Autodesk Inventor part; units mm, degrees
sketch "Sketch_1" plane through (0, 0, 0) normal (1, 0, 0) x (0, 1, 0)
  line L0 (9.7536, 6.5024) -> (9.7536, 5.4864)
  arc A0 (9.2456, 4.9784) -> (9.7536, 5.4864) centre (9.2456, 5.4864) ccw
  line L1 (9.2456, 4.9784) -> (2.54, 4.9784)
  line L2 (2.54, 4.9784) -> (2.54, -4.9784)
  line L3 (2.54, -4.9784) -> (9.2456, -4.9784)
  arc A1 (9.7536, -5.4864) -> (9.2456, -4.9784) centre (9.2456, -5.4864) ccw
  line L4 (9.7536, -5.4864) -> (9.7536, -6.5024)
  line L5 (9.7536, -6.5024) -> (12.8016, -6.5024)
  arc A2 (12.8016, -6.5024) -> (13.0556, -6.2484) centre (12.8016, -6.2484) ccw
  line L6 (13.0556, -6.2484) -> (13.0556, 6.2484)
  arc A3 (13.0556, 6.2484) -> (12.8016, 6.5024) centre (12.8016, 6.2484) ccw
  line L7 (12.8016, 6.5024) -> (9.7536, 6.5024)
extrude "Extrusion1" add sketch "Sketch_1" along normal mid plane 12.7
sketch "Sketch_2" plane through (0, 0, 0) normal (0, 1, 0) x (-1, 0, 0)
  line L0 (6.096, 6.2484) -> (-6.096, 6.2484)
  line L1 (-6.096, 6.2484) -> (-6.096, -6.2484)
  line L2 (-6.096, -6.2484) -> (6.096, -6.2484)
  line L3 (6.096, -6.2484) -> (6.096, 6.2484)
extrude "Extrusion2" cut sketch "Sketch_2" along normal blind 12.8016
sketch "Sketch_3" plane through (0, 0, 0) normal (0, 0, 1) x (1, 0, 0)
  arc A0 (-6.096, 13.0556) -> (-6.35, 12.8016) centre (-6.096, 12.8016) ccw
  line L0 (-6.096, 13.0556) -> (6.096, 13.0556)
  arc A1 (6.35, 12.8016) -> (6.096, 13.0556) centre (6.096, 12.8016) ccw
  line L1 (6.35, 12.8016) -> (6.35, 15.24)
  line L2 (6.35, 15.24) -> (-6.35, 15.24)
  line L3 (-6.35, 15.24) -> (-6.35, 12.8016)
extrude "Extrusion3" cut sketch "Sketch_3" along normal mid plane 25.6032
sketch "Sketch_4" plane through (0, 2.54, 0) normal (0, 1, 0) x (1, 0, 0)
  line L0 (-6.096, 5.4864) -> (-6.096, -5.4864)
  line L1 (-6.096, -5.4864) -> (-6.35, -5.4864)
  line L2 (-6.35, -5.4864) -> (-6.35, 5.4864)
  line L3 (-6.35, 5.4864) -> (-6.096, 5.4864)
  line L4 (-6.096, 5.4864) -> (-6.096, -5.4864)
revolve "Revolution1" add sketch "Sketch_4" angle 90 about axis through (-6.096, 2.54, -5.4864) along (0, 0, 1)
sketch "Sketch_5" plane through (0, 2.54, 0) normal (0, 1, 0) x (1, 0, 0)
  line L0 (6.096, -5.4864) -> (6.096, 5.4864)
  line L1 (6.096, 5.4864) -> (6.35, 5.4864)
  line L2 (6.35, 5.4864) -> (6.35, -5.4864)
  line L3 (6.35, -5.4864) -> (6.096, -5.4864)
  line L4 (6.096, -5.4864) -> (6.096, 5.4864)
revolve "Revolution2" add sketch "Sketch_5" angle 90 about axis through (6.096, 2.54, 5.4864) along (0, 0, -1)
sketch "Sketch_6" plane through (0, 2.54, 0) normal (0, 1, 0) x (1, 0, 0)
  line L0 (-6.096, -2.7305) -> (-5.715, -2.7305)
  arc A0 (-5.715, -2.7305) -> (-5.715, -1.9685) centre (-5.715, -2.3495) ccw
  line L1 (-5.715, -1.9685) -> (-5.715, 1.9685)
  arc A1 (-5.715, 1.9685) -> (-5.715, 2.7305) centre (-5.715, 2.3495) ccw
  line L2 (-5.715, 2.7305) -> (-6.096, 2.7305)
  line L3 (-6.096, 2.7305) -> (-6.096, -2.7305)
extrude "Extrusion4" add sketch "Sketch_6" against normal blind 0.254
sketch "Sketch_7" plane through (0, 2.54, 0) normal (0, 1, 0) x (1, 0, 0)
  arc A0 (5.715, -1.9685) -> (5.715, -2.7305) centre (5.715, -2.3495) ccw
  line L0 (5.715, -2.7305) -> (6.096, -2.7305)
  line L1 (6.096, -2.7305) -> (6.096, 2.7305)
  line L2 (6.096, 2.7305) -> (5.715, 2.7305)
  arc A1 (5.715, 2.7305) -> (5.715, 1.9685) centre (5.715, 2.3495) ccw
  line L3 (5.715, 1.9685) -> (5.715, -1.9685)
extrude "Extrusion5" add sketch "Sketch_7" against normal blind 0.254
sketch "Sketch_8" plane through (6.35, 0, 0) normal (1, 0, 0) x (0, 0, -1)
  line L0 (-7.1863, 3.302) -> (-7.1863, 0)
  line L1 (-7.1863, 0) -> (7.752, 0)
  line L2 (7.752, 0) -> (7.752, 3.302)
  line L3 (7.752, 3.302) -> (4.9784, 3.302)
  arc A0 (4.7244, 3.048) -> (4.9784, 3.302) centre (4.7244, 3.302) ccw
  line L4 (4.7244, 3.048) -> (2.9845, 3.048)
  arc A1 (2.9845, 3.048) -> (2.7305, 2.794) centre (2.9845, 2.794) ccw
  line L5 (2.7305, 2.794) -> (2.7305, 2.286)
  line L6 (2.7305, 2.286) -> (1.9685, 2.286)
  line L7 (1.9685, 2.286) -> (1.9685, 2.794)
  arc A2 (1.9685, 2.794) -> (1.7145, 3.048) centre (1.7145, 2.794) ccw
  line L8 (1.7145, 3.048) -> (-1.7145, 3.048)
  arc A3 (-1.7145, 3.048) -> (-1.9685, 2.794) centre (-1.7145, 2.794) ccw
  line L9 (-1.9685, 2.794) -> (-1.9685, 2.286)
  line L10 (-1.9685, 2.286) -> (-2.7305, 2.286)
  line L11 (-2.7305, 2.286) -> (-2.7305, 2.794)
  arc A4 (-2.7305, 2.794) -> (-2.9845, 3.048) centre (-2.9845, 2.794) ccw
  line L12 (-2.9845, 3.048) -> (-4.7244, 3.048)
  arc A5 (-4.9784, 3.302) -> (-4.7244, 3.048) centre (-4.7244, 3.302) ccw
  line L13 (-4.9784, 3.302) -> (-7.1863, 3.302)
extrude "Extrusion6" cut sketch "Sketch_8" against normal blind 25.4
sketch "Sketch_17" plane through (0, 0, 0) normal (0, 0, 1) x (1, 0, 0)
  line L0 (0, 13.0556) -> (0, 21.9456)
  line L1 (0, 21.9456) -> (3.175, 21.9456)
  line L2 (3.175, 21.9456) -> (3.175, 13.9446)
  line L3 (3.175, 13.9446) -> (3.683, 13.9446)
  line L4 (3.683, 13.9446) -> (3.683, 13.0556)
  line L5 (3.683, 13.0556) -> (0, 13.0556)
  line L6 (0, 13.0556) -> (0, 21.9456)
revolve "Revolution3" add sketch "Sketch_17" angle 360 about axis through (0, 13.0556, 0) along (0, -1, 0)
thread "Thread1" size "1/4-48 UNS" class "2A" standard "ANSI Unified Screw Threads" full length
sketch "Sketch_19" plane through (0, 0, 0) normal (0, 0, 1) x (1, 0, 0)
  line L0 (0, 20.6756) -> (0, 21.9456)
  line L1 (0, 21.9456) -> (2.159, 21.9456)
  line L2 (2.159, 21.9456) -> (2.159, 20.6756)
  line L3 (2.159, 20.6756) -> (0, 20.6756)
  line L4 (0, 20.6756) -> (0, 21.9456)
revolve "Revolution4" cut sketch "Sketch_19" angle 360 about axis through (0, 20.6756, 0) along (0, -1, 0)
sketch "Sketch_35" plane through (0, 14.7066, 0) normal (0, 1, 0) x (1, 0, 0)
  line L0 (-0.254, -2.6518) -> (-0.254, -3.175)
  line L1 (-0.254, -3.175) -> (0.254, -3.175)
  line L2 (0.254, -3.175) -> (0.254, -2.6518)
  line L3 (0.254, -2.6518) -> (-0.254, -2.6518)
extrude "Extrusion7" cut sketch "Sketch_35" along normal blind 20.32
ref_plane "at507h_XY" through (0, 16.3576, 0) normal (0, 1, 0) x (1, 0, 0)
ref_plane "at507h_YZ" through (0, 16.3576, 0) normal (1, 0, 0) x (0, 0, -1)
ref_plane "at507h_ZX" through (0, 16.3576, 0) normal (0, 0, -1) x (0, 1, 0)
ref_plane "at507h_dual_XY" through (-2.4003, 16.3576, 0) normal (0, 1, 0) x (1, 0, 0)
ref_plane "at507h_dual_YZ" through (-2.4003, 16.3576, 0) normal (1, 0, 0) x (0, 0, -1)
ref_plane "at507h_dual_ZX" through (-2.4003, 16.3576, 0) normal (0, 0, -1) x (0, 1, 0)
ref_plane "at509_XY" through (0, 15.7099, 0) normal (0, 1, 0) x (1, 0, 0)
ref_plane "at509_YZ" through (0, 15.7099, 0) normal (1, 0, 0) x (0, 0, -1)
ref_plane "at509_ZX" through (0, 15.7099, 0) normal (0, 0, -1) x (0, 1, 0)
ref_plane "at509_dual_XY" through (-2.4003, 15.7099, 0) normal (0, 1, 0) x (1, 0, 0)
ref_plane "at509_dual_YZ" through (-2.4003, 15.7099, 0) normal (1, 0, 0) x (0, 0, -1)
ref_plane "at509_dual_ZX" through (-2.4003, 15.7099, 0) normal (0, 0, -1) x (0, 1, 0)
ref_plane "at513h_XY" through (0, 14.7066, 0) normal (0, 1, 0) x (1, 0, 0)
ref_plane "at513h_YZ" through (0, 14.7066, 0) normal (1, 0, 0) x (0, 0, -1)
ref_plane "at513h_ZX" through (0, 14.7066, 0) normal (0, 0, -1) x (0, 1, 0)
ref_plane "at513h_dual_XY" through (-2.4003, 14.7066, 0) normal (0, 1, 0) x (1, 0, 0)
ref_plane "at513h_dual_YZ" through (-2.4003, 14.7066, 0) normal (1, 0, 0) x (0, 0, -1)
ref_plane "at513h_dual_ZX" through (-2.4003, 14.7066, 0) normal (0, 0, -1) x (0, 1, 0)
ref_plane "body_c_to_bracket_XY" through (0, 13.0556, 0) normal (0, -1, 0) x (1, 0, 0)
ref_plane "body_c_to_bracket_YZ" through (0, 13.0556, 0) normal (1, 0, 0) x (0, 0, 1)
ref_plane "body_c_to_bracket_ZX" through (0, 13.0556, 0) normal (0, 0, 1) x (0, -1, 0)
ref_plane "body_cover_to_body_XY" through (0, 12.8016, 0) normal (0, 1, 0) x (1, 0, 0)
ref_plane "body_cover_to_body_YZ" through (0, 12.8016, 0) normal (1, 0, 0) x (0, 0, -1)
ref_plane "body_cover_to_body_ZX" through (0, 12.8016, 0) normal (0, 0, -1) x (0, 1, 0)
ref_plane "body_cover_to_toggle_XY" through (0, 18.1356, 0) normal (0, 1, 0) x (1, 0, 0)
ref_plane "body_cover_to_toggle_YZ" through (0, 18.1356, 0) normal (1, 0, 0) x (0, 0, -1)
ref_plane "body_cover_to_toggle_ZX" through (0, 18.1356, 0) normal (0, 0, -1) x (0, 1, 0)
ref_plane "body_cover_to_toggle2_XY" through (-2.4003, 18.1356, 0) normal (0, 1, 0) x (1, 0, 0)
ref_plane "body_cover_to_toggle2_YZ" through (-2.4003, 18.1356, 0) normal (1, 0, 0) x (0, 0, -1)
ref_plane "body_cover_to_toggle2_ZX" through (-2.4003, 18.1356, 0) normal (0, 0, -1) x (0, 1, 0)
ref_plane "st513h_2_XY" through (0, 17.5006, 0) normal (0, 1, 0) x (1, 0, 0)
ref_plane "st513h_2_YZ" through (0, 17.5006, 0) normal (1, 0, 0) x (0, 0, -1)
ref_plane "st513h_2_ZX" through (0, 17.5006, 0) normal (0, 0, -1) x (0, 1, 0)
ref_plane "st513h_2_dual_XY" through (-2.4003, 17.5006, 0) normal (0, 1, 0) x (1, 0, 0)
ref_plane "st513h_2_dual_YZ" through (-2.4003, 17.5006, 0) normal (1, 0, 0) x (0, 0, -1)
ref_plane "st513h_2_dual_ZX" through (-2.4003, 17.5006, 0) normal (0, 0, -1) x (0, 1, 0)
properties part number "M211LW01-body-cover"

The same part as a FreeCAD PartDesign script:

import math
import FreeCAD as App
import Part
import Sketcher
from FreeCAD import Vector
Q = App.Units.Quantity

doc = App.newDocument("Part")
body = doc.addObject("PartDesign::Body", "Body")

# Sketch on YZ plane
sketch1 = body.newObject("Sketcher::SketchObject", "Sketch")
sketch1.AttachmentSupport = (doc.getObject("YZ_Plane"), [""])
sketch1.MapMode = "FlatFace"
sketch1.addGeometry(Part.LineSegment(Vector(12.8, 6.5, 0), Vector(9.75, 6.5, 0)), False)
sketch1.addGeometry(Part.LineSegment(Vector(9.75, 6.5, 0), Vector(9.75, 5.49, 0)), False)
sketch1.addGeometry(Part.ArcOfCircle(Part.Circle(Vector(9.25, 5.49, 0), Vector(0, 0, 1), 0.51), math.radians(-90), math.radians(0)), False)
sketch1.addGeometry(Part.LineSegment(Vector(9.25, 4.98, 0), Vector(2.54, 4.98, 0)), False)
sketch1.addGeometry(Part.LineSegment(Vector(2.54, 4.98, 0), Vector(2.54, -4.98, 0)), False)
sketch1.addGeometry(Part.LineSegment(Vector(2.54, -4.98, 0), Vector(9.25, -4.98, 0)), False)
sketch1.addGeometry(Part.ArcOfCircle(Part.Circle(Vector(9.25, -5.49, 0), Vector(0, 0, 1), 0.51), math.radians(0), math.radians(90)), False)
sketch1.addGeometry(Part.LineSegment(Vector(9.75, -5.49, 0), Vector(9.75, -6.5, 0)), False)
sketch1.addGeometry(Part.LineSegment(Vector(9.75, -6.5, 0), Vector(12.8, -6.5, 0)), False)
sketch1.addGeometry(Part.ArcOfCircle(Part.Circle(Vector(12.8, -6.25, 0), Vector(0, 0, 1), 0.25), math.radians(-90), math.radians(0)), False)
sketch1.addGeometry(Part.LineSegment(Vector(13.06, -6.25, 0), Vector(13.06, 6.25, 0)), False)
sketch1.addGeometry(Part.ArcOfCircle(Part.Circle(Vector(12.8, 6.25, 0), Vector(0, 0, 1), 0.25), math.radians(0), math.radians(90)), False)
sketch1.addConstraint(Sketcher.Constraint("Coincident", 0, 2, 1, 1))
sketch1.addConstraint(Sketcher.Constraint("Tangent", 1, 2, 2, 2))
sketch1.addConstraint(Sketcher.Constraint("Tangent", 2, 1, 3, 1))
sketch1.addConstraint(Sketcher.Constraint("Coincident", 3, 2, 4, 1))
sketch1.addConstraint(Sketcher.Constraint("Coincident", 4, 2, 5, 1))
sketch1.addConstraint(Sketcher.Constraint("Tangent", 5, 2, 6, 2))
sketch1.addConstraint(Sketcher.Constraint("Tangent", 6, 1, 7, 1))
sketch1.addConstraint(Sketcher.Constraint("Coincident", 7, 2, 8, 1))
sketch1.addConstraint(Sketcher.Constraint("Tangent", 8, 2, 9, 1))
sketch1.addConstraint(Sketcher.Constraint("Tangent", 9, 2, 10, 1))
sketch1.addConstraint(Sketcher.Constraint("Tangent", 10, 2, 11, 1))
sketch1.addConstraint(Sketcher.Constraint("Tangent", 11, 2, 0, 1))
sketch1.addConstraint(Sketcher.Constraint("Horizontal", 0))
sketch1.addConstraint(Sketcher.Constraint("Vertical", 1))
sketch1.addConstraint(Sketcher.Constraint("Horizontal", 3))
sketch1.addConstraint(Sketcher.Constraint("Vertical", 4))
sketch1.addConstraint(Sketcher.Constraint("Horizontal", 5))
sketch1.addConstraint(Sketcher.Constraint("Vertical", 7))
sketch1.addConstraint(Sketcher.Constraint("Horizontal", 8))
sketch1.addConstraint(Sketcher.Constraint("Vertical", 10))
sketch1.addConstraint(Sketcher.Constraint("Equal", 2, 6))
sketch1.addConstraint(Sketcher.Constraint("Equal", 9, 11))
sketch1.addConstraint(Sketcher.Constraint("Symmetric", 2, 3, 6, 3, -1))
sketch1.addConstraint(Sketcher.Constraint("Equal", 1, 7))
sketch1.addConstraint(Sketcher.Constraint("Radius", 2, Q("0.02 in")))
sketch1.addConstraint(Sketcher.Constraint("Radius", 9, Q("0.01 in")))
sketch1.addConstraint(Sketcher.Constraint("DistanceX", 0, 2, 0, 1, Q("0.12 in")))
sketch1.addConstraint(Sketcher.Constraint("DistanceY", 1, 2, 1, 1, Q("0.04 in")))
sketch1.addConstraint(Sketcher.Constraint("DistanceX", -1, 1, 3, 2, Q("0.1 in")))
sketch1.addConstraint(Sketcher.Constraint("DistanceX", 3, 2, 3, 1, Q("0.264 in")))
sketch1.addConstraint(Sketcher.Constraint("DistanceY", 4, 2, 4, 1, Q("0.392 in")))
pad1 = body.newObject("PartDesign::Pad", "Pad")
pad1.Profile = sketch1
pad1.Length = Q("0.5 in")
pad1.Midplane = True

# Sketch on XZ plane
sketch2 = body.newObject("Sketcher::SketchObject", "Sketch001")
sketch2.AttachmentSupport = (doc.getObject("XZ_Plane"), [""])
sketch2.MapMode = "FlatFace"
sketch2.addGeometry(Part.LineSegment(Vector(-6, -6, 0), Vector(-6, 6, 0)), False)
sketch2.addGeometry(Part.LineSegment(Vector(-6, 6, 0), Vector(6, 6, 0)), False)
sketch2.addGeometry(Part.LineSegment(Vector(6, 6, 0), Vector(6, -6, 0)), False)
sketch2.addGeometry(Part.LineSegment(Vector(6, -6, 0), Vector(-6, -6, 0)), False)
sketch2.addConstraint(Sketcher.Constraint("Coincident", 0, 2, 1, 1))
sketch2.addConstraint(Sketcher.Constraint("Coincident", 1, 2, 2, 1))
sketch2.addConstraint(Sketcher.Constraint("Coincident", 2, 2, 3, 1))
sketch2.addConstraint(Sketcher.Constraint("Coincident", 3, 2, 0, 1))
sketch2.addConstraint(Sketcher.Constraint("Vertical", 0))
sketch2.addConstraint(Sketcher.Constraint("Horizontal", 1))
sketch2.addConstraint(Sketcher.Constraint("Vertical", 2))
sketch2.addConstraint(Sketcher.Constraint("Horizontal", 3))
sketch2.addConstraint(Sketcher.Constraint("Symmetric", 0, 2, 2, 2, -1, 1))
sketch2.addConstraint(Sketcher.Constraint("DistanceX", 1, 1, 1, 2, Q("0.48 in")))
sketch2.addConstraint(Sketcher.Constraint("DistanceY", 0, 1, 0, 2, Q("0.492 in")))
pocket1 = body.newObject("PartDesign::Pocket", "Pocket")
pocket1.Profile = sketch2
pocket1.Length = Q("0.504 in")

# Sketch on XY plane
sketch3 = body.newObject("Sketcher::SketchObject", "Sketch002")
sketch3.AttachmentSupport = (doc.getObject("XY_Plane"), [""])
sketch3.MapMode = "FlatFace"
sketch3.addGeometry(Part.ArcOfCircle(Part.Circle(Vector(-6.1, 12.8, 0), Vector(0, 0, 1), 0.25), math.radians(90), math.radians(180)), False)
sketch3.addGeometry(Part.LineSegment(Vector(-6.1, 13.06, 0), Vector(6.1, 13.06, 0)), False)
sketch3.addGeometry(Part.ArcOfCircle(Part.Circle(Vector(6.1, 12.8, 0), Vector(0, 0, 1), 0.25), math.radians(0), math.radians(90)), False)
sketch3.addGeometry(Part.LineSegment(Vector(6.35, 12.8, 0), Vector(6.35, 15.24, 0)), False)
sketch3.addGeometry(Part.LineSegment(Vector(6.35, 15.24, 0), Vector(-6.35, 15.24, 0)), False)
sketch3.addGeometry(Part.LineSegment(Vector(-6.35, 15.24, 0), Vector(-6.35, 12.8, 0)), False)
sketch3.addConstraint(Sketcher.Constraint("Tangent", 0, 1, 1, 1))
sketch3.addConstraint(Sketcher.Constraint("Tangent", 1, 2, 2, 2))
sketch3.addConstraint(Sketcher.Constraint("Tangent", 2, 1, 3, 1))
sketch3.addConstraint(Sketcher.Constraint("Coincident", 3, 2, 4, 1))
sketch3.addConstraint(Sketcher.Constraint("Coincident", 4, 2, 5, 1))
sketch3.addConstraint(Sketcher.Constraint("Tangent", 5, 2, 0, 2))
sketch3.addConstraint(Sketcher.Constraint("Horizontal", 1))
sketch3.addConstraint(Sketcher.Constraint("Vertical", 3))
sketch3.addConstraint(Sketcher.Constraint("Horizontal", 4))
sketch3.addConstraint(Sketcher.Constraint("Vertical", 5))
sketch3.addConstraint(Sketcher.Constraint("Equal", 0, 2))
sketch3.addConstraint(Sketcher.Constraint("Radius", 0, Q("0.01 in")))
sketch3.addConstraint(Sketcher.Constraint("DistanceX", 4, 2, 4, 1, Q("0.5 in")))
sketch3.addConstraint(Sketcher.Constraint("DistanceY", -1, 1, 3, 2, Q("0.6 in")))
sketch3.addConstraint(Sketcher.Constraint("DistanceY", 3, 1, 3, 2, Q("0.096 in")))
sketch3.addConstraint(Sketcher.Constraint("DistanceX", 0, 3, -1, 1, Q("0.24 in")))
pocket2 = body.newObject("PartDesign::Pocket", "Pocket001")
pocket2.Profile = sketch3
pocket2.Length = Q("1.008 in")
pocket2.Midplane = True

# Sketch on XZ plane
sketch4 = body.newObject("Sketcher::SketchObject", "Sketch003")
sketch4.AttachmentSupport = (doc.getObject("XZ_Plane"), [""])
sketch4.MapMode = "FlatFace"
sketch4.AttachmentOffset = App.Placement(Vector(0, 0, -0.1 * 25.4), App.Rotation())
sketch4.addGeometry(Part.LineSegment(Vector(-6.1, 5.49, 0), Vector(-6.1, -5.49, 0)), False)
sketch4.addGeometry(Part.LineSegment(Vector(-6.1, -5.49, 0), Vector(-6.35, -5.49, 0)), False)
sketch4.addGeometry(Part.LineSegment(Vector(-6.35, -5.49, 0), Vector(-6.35, 5.49, 0)), False)
sketch4.addGeometry(Part.LineSegment(Vector(-6.35, 5.49, 0), Vector(-6.1, 5.49, 0)), False)
sketch4.addGeometry(Part.LineSegment(Vector(-6.1, -5.49, 0), Vector(-6.1, 5.49, 0)), True)  # axis
sketch4.addConstraint(Sketcher.Constraint("Coincident", 0, 2, 1, 1))
sketch4.addConstraint(Sketcher.Constraint("Coincident", 1, 2, 2, 1))
sketch4.addConstraint(Sketcher.Constraint("Coincident", 2, 2, 3, 1))
sketch4.addConstraint(Sketcher.Constraint("Coincident", 3, 2, 0, 1))
sketch4.addConstraint(Sketcher.Constraint("Vertical", 0))
sketch4.addConstraint(Sketcher.Constraint("Horizontal", 1))
sketch4.addConstraint(Sketcher.Constraint("Vertical", 2))
sketch4.addConstraint(Sketcher.Constraint("Horizontal", 3))
sketch4.addConstraint(Sketcher.Constraint("Vertical", 4))
sketch4.addConstraint(Sketcher.Constraint("Coincident", 4, 1, 0, 2))
sketch4.addConstraint(Sketcher.Constraint("Horizontal", 2, 2, 4, 2))
sketch4.addConstraint(Sketcher.Constraint("DistanceX", 1, 2, 1, 1, Q("0.01 in")))
sketch4.addConstraint(Sketcher.Constraint("DistanceY", 0, 2, 0, 1, Q("0.432 in")))
sketch4.addConstraint(Sketcher.Constraint("DistanceX", 0, 2, -1, 1, Q("0.24 in")))
sketch4.addConstraint(Sketcher.Constraint("DistanceY", 0, 2, -1, 1, Q("0.216 in")))
revolution = body.newObject("PartDesign::Revolution", "Revolution")
revolution.Profile = sketch4
revolution.ReferenceAxis = (sketch4, ["Axis0"])
revolution.Angle = 90

# Sketch on XZ plane
sketch5 = body.newObject("Sketcher::SketchObject", "Sketch004")
sketch5.AttachmentSupport = (doc.getObject("XZ_Plane"), [""])
sketch5.MapMode = "FlatFace"
sketch5.AttachmentOffset = App.Placement(Vector(0, 0, -0.1 * 25.4), App.Rotation())
sketch5.addGeometry(Part.LineSegment(Vector(6.1, -5.49, 0), Vector(6.1, 5.49, 0)), False)
sketch5.addGeometry(Part.LineSegment(Vector(6.1, 5.49, 0), Vector(6.35, 5.49, 0)), False)
sketch5.addGeometry(Part.LineSegment(Vector(6.35, 5.49, 0), Vector(6.35, -5.49, 0)), False)
sketch5.addGeometry(Part.LineSegment(Vector(6.35, -5.49, 0), Vector(6.1, -5.49, 0)), False)
sketch5.addGeometry(Part.LineSegment(Vector(6.1, 5.49, 0), Vector(6.1, -5.49, 0)), True)  # axis
sketch5.addConstraint(Sketcher.Constraint("Coincident", 0, 2, 1, 1))
sketch5.addConstraint(Sketcher.Constraint("Coincident", 1, 2, 2, 1))
sketch5.addConstraint(Sketcher.Constraint("Coincident", 2, 2, 3, 1))
sketch5.addConstraint(Sketcher.Constraint("Coincident", 3, 2, 0, 1))
sketch5.addConstraint(Sketcher.Constraint("Vertical", 0))
sketch5.addConstraint(Sketcher.Constraint("Horizontal", 1))
sketch5.addConstraint(Sketcher.Constraint("Vertical", 2))
sketch5.addConstraint(Sketcher.Constraint("Horizontal", 3))
sketch5.addConstraint(Sketcher.Constraint("Vertical", 4))
sketch5.addConstraint(Sketcher.Constraint("Coincident", 4, 1, 0, 2))
sketch5.addConstraint(Sketcher.Constraint("Horizontal", 2, 2, 4, 2))
sketch5.addConstraint(Sketcher.Constraint("DistanceX", 1, 1, 1, 2, Q("0.01 in")))
sketch5.addConstraint(Sketcher.Constraint("DistanceY", 0, 1, 0, 2, Q("0.432 in")))
sketch5.addConstraint(Sketcher.Constraint("DistanceX", -1, 1, 0, 2, Q("0.24 in")))
sketch5.addConstraint(Sketcher.Constraint("DistanceY", -1, 1, 0, 2, Q("0.216 in")))
revolution2 = body.newObject("PartDesign::Revolution", "Revolution001")
revolution2.Profile = sketch5
revolution2.ReferenceAxis = (sketch5, ["Axis0"])
revolution2.Angle = 90

# Sketch on XZ plane
sketch6 = body.newObject("Sketcher::SketchObject", "Sketch005")
sketch6.AttachmentSupport = (doc.getObject("XZ_Plane"), [""])
sketch6.MapMode = "FlatFace"
sketch6.AttachmentOffset = App.Placement(Vector(0, 0, -0.1 * 25.4), App.Rotation())
sketch6.addGeometry(Part.LineSegment(Vector(-6.1, -2.73, 0), Vector(-6.1, 2.73, 0)), False)
sketch6.addGeometry(Part.LineSegment(Vector(-6.1, 2.73, 0), Vector(-5.71, 2.73, 0)), False)
sketch6.addGeometry(Part.ArcOfCircle(Part.Circle(Vector(-5.71, 2.35, 0), Vector(0, 0, 1), 0.38), math.radians(-90), math.radians(90)), False)
sketch6.addGeometry(Part.LineSegment(Vector(-5.71, 1.97, 0), Vector(-5.71, -1.97, 0)), False)
sketch6.addGeometry(Part.ArcOfCircle(Part.Circle(Vector(-5.71, -2.35, 0), Vector(0, 0, 1), 0.38), math.radians(-90), math.radians(90)), False)
sketch6.addGeometry(Part.LineSegment(Vector(-5.71, -2.73, 0), Vector(-6.1, -2.73, 0)), False)
sketch6.addConstraint(Sketcher.Constraint("Coincident", 0, 2, 1, 1))
sketch6.addConstraint(Sketcher.Constraint("Tangent", 1, 2, 2, 2))
sketch6.addConstraint(Sketcher.Constraint("Coincident", 2, 1, 3, 1))
sketch6.addConstraint(Sketcher.Constraint("Coincident", 3, 2, 4, 2))
sketch6.addConstraint(Sketcher.Constraint("Tangent", 4, 1, 5, 1))
sketch6.addConstraint(Sketcher.Constraint("Coincident", 5, 2, 0, 1))
sketch6.addConstraint(Sketcher.Constraint("Vertical", 0))
sketch6.addConstraint(Sketcher.Constraint("Horizontal", 1))
sketch6.addConstraint(Sketcher.Constraint("Vertical", 3))
sketch6.addConstraint(Sketcher.Constraint("Horizontal", 5))
sketch6.addConstraint(Sketcher.Constraint("Equal", 2, 4))
sketch6.addConstraint(Sketcher.Constraint("Symmetric", 2, 3, 4, 3, -1))
sketch6.addConstraint(Sketcher.Constraint("Vertical", 1, 2, 2, 1))
sketch6.addConstraint(Sketcher.Constraint("Radius", 2, Q("0.015 in")))
sketch6.addConstraint(Sketcher.Constraint("DistanceY", 4, 3, 0, 2, Q("0.2 in")))
sketch6.addConstraint(Sketcher.Constraint("DistanceX", 1, 1, 1, 2, Q("0.015 in")))
sketch6.addConstraint(Sketcher.Constraint("DistanceX", 0, 2, -1, 1, Q("0.24 in")))
pad2 = body.newObject("PartDesign::Pad", "Pad001")
pad2.Profile = sketch6
pad2.Length = Q("0.01 in")

# Sketch on XZ plane
sketch7 = body.newObject("Sketcher::SketchObject", "Sketch006")
sketch7.AttachmentSupport = (doc.getObject("XZ_Plane"), [""])
sketch7.MapMode = "FlatFace"
sketch7.AttachmentOffset = App.Placement(Vector(0, 0, -0.1 * 25.4), App.Rotation())
sketch7.addGeometry(Part.LineSegment(Vector(5.71, -1.97, 0), Vector(5.71, 1.97, 0)), False)
sketch7.addGeometry(Part.ArcOfCircle(Part.Circle(Vector(5.71, 2.35, 0), Vector(0, 0, 1), 0.38), math.radians(90), math.radians(270)), False)
sketch7.addGeometry(Part.LineSegment(Vector(5.71, 2.73, 0), Vector(6.1, 2.73, 0)), False)
sketch7.addGeometry(Part.LineSegment(Vector(6.1, 2.73, 0), Vector(6.1, -2.73, 0)), False)
sketch7.addGeometry(Part.LineSegment(Vector(6.1, -2.73, 0), Vector(5.71, -2.73, 0)), False)
sketch7.addGeometry(Part.ArcOfCircle(Part.Circle(Vector(5.71, -2.35, 0), Vector(0, 0, 1), 0.38), math.radians(90), math.radians(270)), False)
sketch7.addConstraint(Sketcher.Constraint("Coincident", 0, 2, 1, 2))
sketch7.addConstraint(Sketcher.Constraint("Tangent", 1, 1, 2, 1))
sketch7.addConstraint(Sketcher.Constraint("Coincident", 2, 2, 3, 1))
sketch7.addConstraint(Sketcher.Constraint("Coincident", 3, 2, 4, 1))
sketch7.addConstraint(Sketcher.Constraint("Tangent", 4, 2, 5, 2))
sketch7.addConstraint(Sketcher.Constraint("Coincident", 5, 1, 0, 1))
sketch7.addConstraint(Sketcher.Constraint("Vertical", 0))
sketch7.addConstraint(Sketcher.Constraint("Horizontal", 2))
sketch7.addConstraint(Sketcher.Constraint("Vertical", 3))
sketch7.addConstraint(Sketcher.Constraint("Horizontal", 4))
sketch7.addConstraint(Sketcher.Constraint("Equal", 1, 5))
sketch7.addConstraint(Sketcher.Constraint("Symmetric", 1, 3, 5, 3, -1))
sketch7.addConstraint(Sketcher.Constraint("Vertical", 5, 3, 0, 2))
sketch7.addConstraint(Sketcher.Constraint("Radius", 1, Q("0.015 in")))
sketch7.addConstraint(Sketcher.Constraint("DistanceY", 5, 3, 1, 1, Q("0.2 in")))
sketch7.addConstraint(Sketcher.Constraint("DistanceX", 2, 1, 2, 2, Q("0.015 in")))
sketch7.addConstraint(Sketcher.Constraint("DistanceX", -1, 1, 2, 2, Q("0.24 in")))
pad3 = body.newObject("PartDesign::Pad", "Pad002")
pad3.Profile = sketch7
pad3.Length = Q("0.01 in")

# Sketch on YZ plane
sketch8 = body.newObject("Sketcher::SketchObject", "Sketch007")
sketch8.AttachmentSupport = (doc.getObject("YZ_Plane"), [""])
sketch8.MapMode = "FlatFace"
sketch8.AttachmentOffset = App.Placement(Vector(0, 0, 0.25 * 25.4), App.Rotation())
sketch8.addGeometry(Part.LineSegment(Vector(3.3, 4.98, 0), Vector(3.3, 7.19, 0)), False)
sketch8.addGeometry(Part.LineSegment(Vector(3.3, 7.19, 0), Vector(0, 7.19, 0)), False)
sketch8.addGeometry(Part.LineSegment(Vector(0, 7.19, 0), Vector(0, -7.75, 0)), False)
sketch8.addGeometry(Part.LineSegment(Vector(0, -7.75, 0), Vector(3.3, -7.75, 0)), False)
sketch8.addGeometry(Part.LineSegment(Vector(3.3, -7.75, 0), Vector(3.3, -4.98, 0)), False)
sketch8.addGeometry(Part.ArcOfCircle(Part.Circle(Vector(3.3, -4.72, 0), Vector(0, 0, 1), 0.25), math.radians(180), math.radians(270)), False)
sketch8.addGeometry(Part.LineSegment(Vector(3.05, -4.72, 0), Vector(3.05, -2.98, 0)), False)
sketch8.addGeometry(Part.ArcOfCircle(Part.Circle(Vector(2.79, -2.98, 0), Vector(0, 0, 1), 0.25), math.radians(0), math.radians(90)), False)
sketch8.addGeometry(Part.LineSegment(Vector(2.79, -2.73, 0), Vector(2.29, -2.73, 0)), False)
sketch8.addGeometry(Part.LineSegment(Vector(2.29, -2.73, 0), Vector(2.29, -1.97, 0)), False)
sketch8.addGeometry(Part.LineSegment(Vector(2.29, -1.97, 0), Vector(2.79, -1.97, 0)), False)
sketch8.addGeometry(Part.ArcOfCircle(Part.Circle(Vector(2.79, -1.71, 0), Vector(0, 0, 1), 0.25), math.radians(-90), math.radians(0)), False)
sketch8.addGeometry(Part.LineSegment(Vector(3.05, -1.71, 0), Vector(3.05, 1.71, 0)), False)
sketch8.addGeometry(Part.ArcOfCircle(Part.Circle(Vector(2.79, 1.71, 0), Vector(0, 0, 1), 0.25), math.radians(0), math.radians(90)), False)
sketch8.addGeometry(Part.LineSegment(Vector(2.79, 1.97, 0), Vector(2.29, 1.97, 0)), False)
sketch8.addGeometry(Part.LineSegment(Vector(2.29, 1.97, 0), Vector(2.29, 2.73, 0)), False)
sketch8.addGeometry(Part.LineSegment(Vector(2.29, 2.73, 0), Vector(2.79, 2.73, 0)), False)
sketch8.addGeometry(Part.ArcOfCircle(Part.Circle(Vector(2.79, 2.98, 0), Vector(0, 0, 1), 0.25), math.radians(-90), math.radians(0)), False)
sketch8.addGeometry(Part.LineSegment(Vector(3.05, 2.98, 0), Vector(3.05, 4.72, 0)), False)
sketch8.addGeometry(Part.ArcOfCircle(Part.Circle(Vector(3.3, 4.72, 0), Vector(0, 0, 1), 0.25), math.radians(90), math.radians(180)), False)
sketch8.addConstraint(Sketcher.Constraint("Coincident", 0, 2, 1, 1))
sketch8.addConstraint(Sketcher.Constraint("Coincident", 1, 2, 2, 1))
sketch8.addConstraint(Sketcher.Constraint("Coincident", 2, 2, 3, 1))
sketch8.addConstraint(Sketcher.Constraint("Coincident", 3, 2, 4, 1))
sketch8.addConstraint(Sketcher.Constraint("Coincident", 4, 2, 5, 2))
sketch8.addConstraint(Sketcher.Constraint("Tangent", 5, 1, 6, 1))
sketch8.addConstraint(Sketcher.Constraint("Tangent", 6, 2, 7, 1))
sketch8.addConstraint(Sketcher.Constraint("Tangent", 7, 2, 8, 1))
sketch8.addConstraint(Sketcher.Constraint("Coincident", 8, 2, 9, 1))
sketch8.addConstraint(Sketcher.Constraint("Coincident", 9, 2, 10, 1))
sketch8.addConstraint(Sketcher.Constraint("Tangent", 10, 2, 11, 1))
sketch8.addConstraint(Sketcher.Constraint("Tangent", 11, 2, 12, 1))
sketch8.addConstraint(Sketcher.Constraint("Tangent", 12, 2, 13, 1))
sketch8.addConstraint(Sketcher.Constraint("Tangent", 13, 2, 14, 1))
sketch8.addConstraint(Sketcher.Constraint("Coincident", 14, 2, 15, 1))
sketch8.addConstraint(Sketcher.Constraint("Coincident", 15, 2, 16, 1))
sketch8.addConstraint(Sketcher.Constraint("Tangent", 16, 2, 17, 1))
sketch8.addConstraint(Sketcher.Constraint("Tangent", 17, 2, 18, 1))
sketch8.addConstraint(Sketcher.Constraint("Tangent", 18, 2, 19, 2))
sketch8.addConstraint(Sketcher.Constraint("Coincident", 19, 1, 0, 1))
sketch8.addConstraint(Sketcher.Constraint("Vertical", 0))
sketch8.addConstraint(Sketcher.Constraint("Horizontal", 1))
sketch8.addConstraint(Sketcher.Constraint("Vertical", 2))
sketch8.addConstraint(Sketcher.Constraint("Horizontal", 3))
sketch8.addConstraint(Sketcher.Constraint("Vertical", 4))
sketch8.addConstraint(Sketcher.Constraint("Vertical", 6))
sketch8.addConstraint(Sketcher.Constraint("Horizontal", 8))
sketch8.addConstraint(Sketcher.Constraint("Vertical", 9))
sketch8.addConstraint(Sketcher.Constraint("Horizontal", 10))
sketch8.addConstraint(Sketcher.Constraint("Vertical", 12))
sketch8.addConstraint(Sketcher.Constraint("Horizontal", 14))
sketch8.addConstraint(Sketcher.Constraint("Vertical", 15))
sketch8.addConstraint(Sketcher.Constraint("Horizontal", 16))
sketch8.addConstraint(Sketcher.Constraint("Vertical", 18))
sketch8.addConstraint(Sketcher.Constraint("Equal", 5, 7))
sketch8.addConstraint(Sketcher.Constraint("Equal", 7, 11))
sketch8.addConstraint(Sketcher.Constraint("Equal", 11, 13))
sketch8.addConstraint(Sketcher.Constraint("Equal", 13, 17))
sketch8.addConstraint(Sketcher.Constraint("Equal", 17, 19))
sketch8.addConstraint(Sketcher.Constraint("Symmetric", 7, 3, 17, 3, -1))
sketch8.addConstraint(Sketcher.Constraint("Symmetric", 9, 2, 14, 2, -1))
sketch8.addConstraint(Sketcher.Constraint("Symmetric", 4, 2, 19, 1, -1))
sketch8.addConstraint(Sketcher.Constraint("PointOnObject", 1, 2, -2))
sketch8.addConstraint(Sketcher.Constraint("Vertical", 7, 3, 11, 3))
sketch8.addConstraint(Sketcher.Constraint("Vertical", 19, 3, 0, 2))
sketch8.addConstraint(Sketcher.Constraint("Radius", 5, Q("0.01 in")))
sketch8.addConstraint(Sketcher.Constraint("DistanceX", 1, 2, 1, 1, Q("0.13 in")))
sketch8.addConstraint(Sketcher.Constraint("DistanceX", 8, 2, 8, 1, Q("0.02 in")))
sketch8.addConstraint(Sketcher.Constraint("DistanceY", 9, 1, 9, 2, Q("0.03 in")))
sketch8.addConstraint(Sketcher.Constraint("DistanceY", 12, 1, 12, 2, Q("0.135 in")))
sketch8.addConstraint(Sketcher.Constraint("DistanceY", 4, 1, 4, 2, Q("0.1092 in")))
sketch8.addConstraint(Sketcher.Constraint("DistanceY", 6, 1, 6, 2, Q("0.0685 in")))
sketch8.addConstraint(Sketcher.Constraint("DistanceY", 0, 1, 0, 2, Q("2.208 mm")))
pocket3 = body.newObject("PartDesign::Pocket", "Pocket002")
pocket3.Profile = sketch8
pocket3.Length = Q("1 in")

# Sketch on XY plane
sketch9 = body.newObject("Sketcher::SketchObject", "Sketch008")
sketch9.AttachmentSupport = (doc.getObject("XY_Plane"), [""])
sketch9.MapMode = "FlatFace"
sketch9.addGeometry(Part.LineSegment(Vector(0, 21.9, 0), Vector(0, 13.1, 0)), False)
sketch9.addGeometry(Part.LineSegment(Vector(0, 13.1, 0), Vector(3.7, 13.1, 0)), False)
sketch9.addGeometry(Part.LineSegment(Vector(3.7, 13.1, 0), Vector(3.7, 13.9, 0)), False)
sketch9.addGeometry(Part.LineSegment(Vector(3.7, 13.9, 0), Vector(3.2, 13.9, 0)), False)
sketch9.addGeometry(Part.LineSegment(Vector(3.2, 13.9, 0), Vector(3.2, 21.9, 0)), False)
sketch9.addGeometry(Part.LineSegment(Vector(3.2, 21.9, 0), Vector(0, 21.9, 0)), False)
sketch9.addConstraint(Sketcher.Constraint("Coincident", 0, 2, 1, 1))
sketch9.addConstraint(Sketcher.Constraint("Coincident", 1, 2, 2, 1))
sketch9.addConstraint(Sketcher.Constraint("Coincident", 2, 2, 3, 1))
sketch9.addConstraint(Sketcher.Constraint("Coincident", 3, 2, 4, 1))
sketch9.addConstraint(Sketcher.Constraint("Coincident", 4, 2, 5, 1))
sketch9.addConstraint(Sketcher.Constraint("Coincident", 5, 2, 0, 1))
sketch9.addConstraint(Sketcher.Constraint("Vertical", 0))
sketch9.addConstraint(Sketcher.Constraint("Horizontal", 1))
sketch9.addConstraint(Sketcher.Constraint("Vertical", 2))
sketch9.addConstraint(Sketcher.Constraint("Horizontal", 3))
sketch9.addConstraint(Sketcher.Constraint("Vertical", 4))
sketch9.addConstraint(Sketcher.Constraint("Horizontal", 5))
sketch9.addConstraint(Sketcher.Constraint("PointOnObject", 0, 2, -2))
sketch9.addConstraint(Sketcher.Constraint("DistanceX", 3, 2, 3, 1, Q("0.02 in")))
sketch9.addConstraint(Sketcher.Constraint("DistanceY", 0, 2, 0, 1, Q("0.35 in")))
sketch9.addConstraint(Sketcher.Constraint("DistanceX", 1, 1, 1, 2, Q("0.145 in")))
sketch9.addConstraint(Sketcher.Constraint("DistanceY", 2, 1, 2, 2, Q("0.035 in")))
sketch9.addConstraint(Sketcher.Constraint("DistanceY", -1, 1, 0, 2, Q("0.514 in")))
revolution3 = body.newObject("PartDesign::Revolution", "Revolution002")
revolution3.Profile = sketch9
revolution3.ReferenceAxis = (sketch9, ["V_Axis"])
revolution3.Angle = 360

# Sketch on XY plane
sketch10 = body.newObject("Sketcher::SketchObject", "Sketch009")
sketch10.AttachmentSupport = (doc.getObject("XY_Plane"), [""])
sketch10.MapMode = "FlatFace"
sketch10.addGeometry(Part.LineSegment(Vector(0, 21.9, 0), Vector(0, 20.7, 0)), False)
sketch10.addGeometry(Part.LineSegment(Vector(0, 20.7, 0), Vector(2.2, 20.7, 0)), False)
sketch10.addGeometry(Part.LineSegment(Vector(2.2, 20.7, 0), Vector(2.2, 21.9, 0)), False)
sketch10.addGeometry(Part.LineSegment(Vector(2.2, 21.9, 0), Vector(0, 21.9, 0)), False)
sketch10.addConstraint(Sketcher.Constraint("Coincident", 0, 2, 1, 1))
sketch10.addConstraint(Sketcher.Constraint("Coincident", 1, 2, 2, 1))
sketch10.addConstraint(Sketcher.Constraint("Coincident", 2, 2, 3, 1))
sketch10.addConstraint(Sketcher.Constraint("Coincident", 3, 2, 0, 1))
sketch10.addConstraint(Sketcher.Constraint("Vertical", 0))
sketch10.addConstraint(Sketcher.Constraint("Horizontal", 1))
sketch10.addConstraint(Sketcher.Constraint("Vertical", 2))
sketch10.addConstraint(Sketcher.Constraint("Horizontal", 3))
sketch10.addConstraint(Sketcher.Constraint("PointOnObject", 0, 2, -2))
sketch10.addConstraint(Sketcher.Constraint("DistanceY", 0, 2, 0, 1, Q("0.05 in")))
sketch10.addConstraint(Sketcher.Constraint("DistanceX", 1, 1, 1, 2, Q("0.085 in")))
sketch10.addConstraint(Sketcher.Constraint("DistanceY", -1, 1, 0, 2, Q("0.814 in")))
groove = body.newObject("PartDesign::Groove", "Groove")
groove.Profile = sketch10
groove.ReferenceAxis = (sketch10, ["V_Axis"])
groove.Angle = 360

# Sketch on XZ plane
sketch11 = body.newObject("Sketcher::SketchObject", "Sketch010")
sketch11.AttachmentSupport = (doc.getObject("XZ_Plane"), [""])
sketch11.MapMode = "FlatFace"
sketch11.AttachmentOffset = App.Placement(Vector(0, 0, -0.579 * 25.4), App.Rotation())
sketch11.addGeometry(Part.LineSegment(Vector(0.3, 2.7, 0), Vector(-0.3, 2.7, 0)), False)
sketch11.addGeometry(Part.LineSegment(Vector(-0.3, 2.7, 0), Vector(-0.3, 3.2, 0)), False)
sketch11.addGeometry(Part.LineSegment(Vector(-0.3, 3.2, 0), Vector(0.3, 3.2, 0)), False)
sketch11.addGeometry(Part.LineSegment(Vector(0.3, 3.2, 0), Vector(0.3, 2.7, 0)), False)
sketch11.addConstraint(Sketcher.Constraint("Coincident", 0, 2, 1, 1))
sketch11.addConstraint(Sketcher.Constraint("Coincident", 1, 2, 2, 1))
sketch11.addConstraint(Sketcher.Constraint("Coincident", 2, 2, 3, 1))
sketch11.addConstraint(Sketcher.Constraint("Coincident", 3, 2, 0, 1))
sketch11.addConstraint(Sketcher.Constraint("Horizontal", 0))
sketch11.addConstraint(Sketcher.Constraint("Vertical", 1))
sketch11.addConstraint(Sketcher.Constraint("Horizontal", 2))
sketch11.addConstraint(Sketcher.Constraint("Vertical", 3))
sketch11.addConstraint(Sketcher.Constraint("DistanceX", 0, 2, 0, 1, Q("0.02 in")))
sketch11.addConstraint(Sketcher.Constraint("DistanceX", 0, 2, -1, 1, Q("0.01 in")))
sketch11.addConstraint(Sketcher.Constraint("DistanceY", 1, 1, 1, 2, Q("0.0206 in")))
sketch11.addConstraint(Sketcher.Constraint("DistanceY", -1, 1, 1, 2, Q("0.125 in")))
pocket4 = body.newObject("PartDesign::Pocket", "Pocket003")
pocket4.Profile = sketch11
pocket4.Length = Q("0.8 in")

doc.recompute()
